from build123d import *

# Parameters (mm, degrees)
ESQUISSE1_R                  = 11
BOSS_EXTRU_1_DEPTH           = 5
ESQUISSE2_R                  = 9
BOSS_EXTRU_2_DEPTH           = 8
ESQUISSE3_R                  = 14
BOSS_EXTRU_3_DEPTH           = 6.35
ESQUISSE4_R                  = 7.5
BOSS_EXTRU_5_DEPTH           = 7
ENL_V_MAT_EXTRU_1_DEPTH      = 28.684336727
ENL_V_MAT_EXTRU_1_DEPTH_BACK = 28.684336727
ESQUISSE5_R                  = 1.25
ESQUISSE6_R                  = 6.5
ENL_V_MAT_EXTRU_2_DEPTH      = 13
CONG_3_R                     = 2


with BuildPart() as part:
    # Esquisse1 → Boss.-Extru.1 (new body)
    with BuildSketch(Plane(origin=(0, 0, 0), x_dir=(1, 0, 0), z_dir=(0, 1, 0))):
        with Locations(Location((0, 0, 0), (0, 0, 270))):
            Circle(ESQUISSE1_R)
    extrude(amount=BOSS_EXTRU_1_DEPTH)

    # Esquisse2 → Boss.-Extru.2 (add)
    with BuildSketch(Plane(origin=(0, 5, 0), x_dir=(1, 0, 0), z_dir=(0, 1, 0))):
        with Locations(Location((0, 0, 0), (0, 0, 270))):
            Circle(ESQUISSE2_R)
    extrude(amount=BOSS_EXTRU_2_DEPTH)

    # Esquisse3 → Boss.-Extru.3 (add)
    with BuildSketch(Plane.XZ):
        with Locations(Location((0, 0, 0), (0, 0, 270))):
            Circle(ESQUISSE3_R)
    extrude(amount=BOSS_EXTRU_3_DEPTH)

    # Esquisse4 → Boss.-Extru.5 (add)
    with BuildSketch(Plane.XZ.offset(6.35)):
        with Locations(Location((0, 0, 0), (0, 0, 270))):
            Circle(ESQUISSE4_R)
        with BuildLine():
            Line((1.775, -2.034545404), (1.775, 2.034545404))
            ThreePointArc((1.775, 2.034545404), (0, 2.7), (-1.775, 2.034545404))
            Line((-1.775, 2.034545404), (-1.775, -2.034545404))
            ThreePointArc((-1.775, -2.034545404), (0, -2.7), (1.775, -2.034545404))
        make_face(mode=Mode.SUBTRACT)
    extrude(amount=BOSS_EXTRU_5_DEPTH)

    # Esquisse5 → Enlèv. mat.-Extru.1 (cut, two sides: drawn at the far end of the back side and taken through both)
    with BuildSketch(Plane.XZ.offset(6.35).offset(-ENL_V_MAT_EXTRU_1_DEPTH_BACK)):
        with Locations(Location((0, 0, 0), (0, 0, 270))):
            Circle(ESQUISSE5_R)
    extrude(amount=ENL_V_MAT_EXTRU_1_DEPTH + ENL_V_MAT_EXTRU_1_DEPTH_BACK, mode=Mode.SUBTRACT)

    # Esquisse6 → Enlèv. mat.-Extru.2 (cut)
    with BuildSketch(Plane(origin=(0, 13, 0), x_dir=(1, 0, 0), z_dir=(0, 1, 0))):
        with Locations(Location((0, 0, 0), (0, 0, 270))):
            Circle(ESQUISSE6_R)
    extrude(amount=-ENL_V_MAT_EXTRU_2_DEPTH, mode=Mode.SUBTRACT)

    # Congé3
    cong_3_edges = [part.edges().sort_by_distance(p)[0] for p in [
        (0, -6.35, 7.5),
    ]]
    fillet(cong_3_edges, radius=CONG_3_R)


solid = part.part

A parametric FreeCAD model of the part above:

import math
import FreeCAD as App
import Part
import Sketcher
Q = App.Units.Quantity


def edges_at(feature, points):
    """Names of the edges that pass closest to the given points."""
    edges = feature.Shape.Edges
    near = lambda p: min(range(len(edges)), key=lambda i: edges[i].distToShape(Part.Vertex(*p))[0])
    return sorted({f"Edge{near(p) + 1}" for p in points})

doc = App.newDocument("Part")
body = doc.addObject("PartDesign::Body", "Body")

# Sketch on XZ plane
sketch1 = body.newObject("Sketcher::SketchObject", "Sketch")
sketch1.AttachmentSupport = (doc.getObject("XZ_Plane"), [""])
sketch1.MapMode = "FlatFace"
sketch1.addGeometry(Part.Circle(App.Vector(0, 0, 0), App.Vector(0, 0, 1), 11), False)
sketch1.addConstraint([
    Sketcher.Constraint("Coincident", 0, 3, -1, 1),
    Sketcher.Constraint("Diameter", 0, Q("22 mm")),
])
pad1 = body.newObject("PartDesign::Pad", "Pad")
pad1.Profile = sketch1
pad1.Length = 5
pad1.Reversed = True

# Sketch on XZ plane
sketch2 = body.newObject("Sketcher::SketchObject", "Sketch001")
sketch2.AttachmentSupport = (doc.getObject("XZ_Plane"), [""])
sketch2.MapMode = "FlatFace"
sketch2.AttachmentOffset = App.Placement(App.Vector(0, 0, -5), App.Rotation())
sketch2.addGeometry(Part.Circle(App.Vector(0, 0, 0), App.Vector(0, 0, 1), 9), False)
sketch2.addConstraint([
    Sketcher.Constraint("Coincident", 0, 3, -1, 1),
    Sketcher.Constraint("Diameter", 0, Q("18 mm")),
])
pad2 = body.newObject("PartDesign::Pad", "Pad001")
pad2.Profile = sketch2
pad2.Length = 8
pad2.Reversed = True

# Sketch on XZ plane
sketch3 = body.newObject("Sketcher::SketchObject", "Sketch002")
sketch3.AttachmentSupport = (doc.getObject("XZ_Plane"), [""])
sketch3.MapMode = "FlatFace"
sketch3.addGeometry(Part.Circle(App.Vector(0, 0, 0), App.Vector(0, 0, 1), 14), False)
sketch3.addConstraint([
    Sketcher.Constraint("Coincident", 0, 3, -1, 1),
    Sketcher.Constraint("Diameter", 0, Q("28 mm")),
])
pad3 = body.newObject("PartDesign::Pad", "Pad002")
pad3.Profile = sketch3
pad3.Length = 6.35

# Sketch on XZ plane
sketch4 = body.newObject("Sketcher::SketchObject", "Sketch003")
sketch4.AttachmentSupport = (doc.getObject("XZ_Plane"), [""])
sketch4.MapMode = "FlatFace"
sketch4.AttachmentOffset = App.Placement(App.Vector(0, 0, 6.35), App.Rotation())
sketch4.addGeometry([
    Part.Circle(App.Vector(0, 0, 0), App.Vector(0, 0, 1), 7.5),  # 0
    Part.LineSegment(App.Vector(1.8, 2, 0), App.Vector(1.8, -2, 0)),  # 1
    Part.ArcOfCircle(Part.Circle(App.Vector(0, 0, 0), App.Vector(0, 0, 1), 2.7), math.radians(-131), math.radians(-49)),  # 2
    Part.LineSegment(App.Vector(-1.8, -2, 0), App.Vector(-1.8, 2, 0)),  # 3
    Part.ArcOfCircle(Part.Circle(App.Vector(0, 0, 0), App.Vector(0, 0, 1), 2.7), math.radians(49), math.radians(131)),  # 4
], False)
sketch4.addConstraint([
    Sketcher.Constraint("Coincident", 1, 2, 2, 2),
    Sketcher.Constraint("Coincident", 2, 1, 3, 1),
    Sketcher.Constraint("Coincident", 3, 2, 4, 2),
    Sketcher.Constraint("Coincident", 4, 1, 1, 1),
    Sketcher.Constraint("Vertical", 1),
    Sketcher.Constraint("Vertical", 3),
    Sketcher.Constraint("Coincident", 0, 3, -1, 1),
    Sketcher.Constraint("Coincident", 2, 3, -1, 1),
    Sketcher.Constraint("Coincident", 4, 3, -1, 1),
    Sketcher.Constraint("Equal", 2, 4),
    Sketcher.Constraint("Horizontal", 1, 2, 2, 1),
    Sketcher.Constraint("Diameter", 0, Q("15 mm")),
    Sketcher.Constraint("Radius", 2, Q("2.7 mm")),
    Sketcher.Constraint("DistanceX", 2, 1, 1, 2, Q("3.55 mm")),
])
pad4 = body.newObject("PartDesign::Pad", "Pad003")
pad4.Profile = sketch4
pad4.Length = 7

# Sketch on XZ plane
sketch5 = body.newObject("Sketcher::SketchObject", "Sketch004")
sketch5.AttachmentSupport = (doc.getObject("XZ_Plane"), [""])
sketch5.MapMode = "FlatFace"
sketch5.AttachmentOffset = App.Placement(App.Vector(0, 0, 6.35), App.Rotation())
sketch5.addGeometry(Part.Circle(App.Vector(0, 0, 0), App.Vector(0, 0, 1), 1.2), False)
sketch5.addConstraint([
    Sketcher.Constraint("Coincident", 0, 3, -1, 1),
    Sketcher.Constraint("Diameter", 0, Q("2.5 mm")),
])
pocket1 = body.newObject("PartDesign::Pocket", "Pocket")
pocket1.Profile = sketch5
pocket1.Type = "ThroughAll"
pocket1.Midplane = True

# Sketch on XZ plane
sketch6 = body.newObject("Sketcher::SketchObject", "Sketch005")
sketch6.AttachmentSupport = (doc.getObject("XZ_Plane"), [""])
sketch6.MapMode = "FlatFace"
sketch6.AttachmentOffset = App.Placement(App.Vector(0, 0, -13), App.Rotation())
sketch6.addGeometry(Part.Circle(App.Vector(0, 0, 0), App.Vector(0, 0, 1), 6), False)
sketch6.addConstraint([
    Sketcher.Constraint("Coincident", 0, 3, -1, 1),
    Sketcher.Constraint("Diameter", 0, Q("13 mm")),
])
pocket2 = body.newObject("PartDesign::Pocket", "Pocket001")
pocket2.Profile = sketch6
pocket2.Length = 13
pocket2.Reversed = True
doc.recompute()

fillet = body.newObject("PartDesign::Fillet", "Fillet")
fillet.Base = (pocket2, edges_at(pocket2, [(0, -6.35, 7.5)]))
fillet.Radius = 2

doc.recompute()
